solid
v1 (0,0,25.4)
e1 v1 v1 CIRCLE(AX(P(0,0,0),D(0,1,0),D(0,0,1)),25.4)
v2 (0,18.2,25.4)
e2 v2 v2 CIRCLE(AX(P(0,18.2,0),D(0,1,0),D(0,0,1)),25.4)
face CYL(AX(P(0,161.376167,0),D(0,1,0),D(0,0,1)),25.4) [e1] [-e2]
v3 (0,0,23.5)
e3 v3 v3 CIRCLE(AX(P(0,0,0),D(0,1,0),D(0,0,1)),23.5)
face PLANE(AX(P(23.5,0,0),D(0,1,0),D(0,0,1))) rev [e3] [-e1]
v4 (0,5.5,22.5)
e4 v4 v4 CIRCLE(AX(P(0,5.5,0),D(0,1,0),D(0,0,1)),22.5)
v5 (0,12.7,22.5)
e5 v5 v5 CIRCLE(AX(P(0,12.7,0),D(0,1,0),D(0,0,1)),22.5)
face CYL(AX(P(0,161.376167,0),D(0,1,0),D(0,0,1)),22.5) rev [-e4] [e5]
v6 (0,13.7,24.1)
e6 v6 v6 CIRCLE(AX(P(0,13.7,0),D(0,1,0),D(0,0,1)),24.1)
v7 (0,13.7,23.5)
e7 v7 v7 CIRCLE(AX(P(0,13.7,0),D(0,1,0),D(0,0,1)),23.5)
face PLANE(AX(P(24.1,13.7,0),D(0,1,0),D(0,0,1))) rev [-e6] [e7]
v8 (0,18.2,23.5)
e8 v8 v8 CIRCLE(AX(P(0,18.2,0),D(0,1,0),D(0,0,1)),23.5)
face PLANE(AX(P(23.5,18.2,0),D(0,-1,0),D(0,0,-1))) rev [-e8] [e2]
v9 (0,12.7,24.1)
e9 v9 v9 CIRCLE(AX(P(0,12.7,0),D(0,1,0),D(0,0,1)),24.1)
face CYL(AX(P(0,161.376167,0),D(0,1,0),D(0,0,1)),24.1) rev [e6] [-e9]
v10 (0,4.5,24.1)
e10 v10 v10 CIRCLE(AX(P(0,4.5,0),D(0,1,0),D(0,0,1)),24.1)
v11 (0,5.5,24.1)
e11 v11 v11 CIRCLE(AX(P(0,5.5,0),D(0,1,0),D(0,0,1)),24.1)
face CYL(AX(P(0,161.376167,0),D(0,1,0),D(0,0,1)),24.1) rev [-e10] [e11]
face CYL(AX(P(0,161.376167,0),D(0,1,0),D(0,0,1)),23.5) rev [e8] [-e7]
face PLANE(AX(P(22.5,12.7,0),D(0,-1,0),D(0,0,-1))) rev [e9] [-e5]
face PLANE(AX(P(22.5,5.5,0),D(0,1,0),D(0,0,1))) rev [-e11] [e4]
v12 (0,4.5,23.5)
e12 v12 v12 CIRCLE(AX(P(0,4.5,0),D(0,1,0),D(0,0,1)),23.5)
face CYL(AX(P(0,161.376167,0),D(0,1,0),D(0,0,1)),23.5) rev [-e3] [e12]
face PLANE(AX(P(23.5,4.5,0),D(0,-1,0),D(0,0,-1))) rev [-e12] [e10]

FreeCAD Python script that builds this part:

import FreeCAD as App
import Part
import Sketcher

V = App.Vector


def add_polygon(sketch, points):
    """Adds a closed chain of lines whose ends are joined by coincident constraints."""
    first, n = sketch.GeometryCount, len(points)
    for a, b in zip(points, points[1:] + points[:1]):
        sketch.addGeometry(Part.LineSegment(App.Vector(*a, 0), App.Vector(*b, 0)), False)
    for i in range(n):
        sketch.addConstraint(Sketcher.Constraint("Coincident", first + i, 2, first + (i + 1) % n, 1))

doc = App.newDocument("Part")
params = doc.addObject("Spreadsheet::Sheet", "Params")
for row, (alias, value) in enumerate([
    ("sketch1_height", "1 mm"),
    ("sketch1_width", "1.9 mm"),
    ("sketch1_width2", "0.6 mm"),
    ("sketch1_width3", "1.6 mm"),
    ("sketch1_height2", "18.2 mm"),
    ("revolution_angle", "360 deg"),
], start=1):
    params.set(f"A{row}", alias)
    params.set(f"B{row}", "=" + value)
    params.setAlias(f"B{row}", alias)

body = doc.addObject("PartDesign::Body", "Body")

# Sketch on XY plane
sketch1 = doc.addObject("Sketcher::SketchObject", "Sketch")
body.addObject(sketch1)
sketch1.AttachmentSupport = (doc.XY_Plane, [""])
sketch1.MapMode = "FlatFace"
add_polygon(sketch1, [(25.4, 0), (25.4, 18.2), (23.5, 18.2), (23.5, 13.7), (24.1, 13.7), (24.1, 12.7), (22.5, 12.7), (22.5, 5.5), (24.1, 5.5), (24.1, 4.5), (23.5, 4.5), (23.5, 0)])  # lines 0-11
sketch1.addConstraint([
    Sketcher.Constraint("Vertical", 0),
    Sketcher.Constraint("Horizontal", 1),
    Sketcher.Constraint("Vertical", 2),
    Sketcher.Constraint("Horizontal", 3),
    Sketcher.Constraint("Vertical", 4),
    Sketcher.Constraint("Horizontal", 5),
    Sketcher.Constraint("Vertical", 6),
    Sketcher.Constraint("Horizontal", 7),
    Sketcher.Constraint("Vertical", 8),
    Sketcher.Constraint("Horizontal", 9),
    Sketcher.Constraint("Vertical", 10),
    Sketcher.Constraint("Horizontal", 11),
    Sketcher.Constraint("PointOnObject", 10, 2, -1),
    Sketcher.Constraint("Vertical", 4, 2, 7, 2),
    Sketcher.Constraint("Vertical", 2, 2, 9, 2),
    Sketcher.Constraint("Equal", 4, 8),
    Sketcher.Constraint("Equal", 2, 10),
    Sketcher.Constraint("DistanceY", 4, 2, 4, 1, 1.0),
    Sketcher.Constraint("DistanceX", 1, 2, 1, 1, 1.9),
    Sketcher.Constraint("DistanceX", 3, 1, 3, 2, 0.6),
    Sketcher.Constraint("DistanceX", 5, 2, 5, 1, 1.6),
    Sketcher.Constraint("DistanceY", 0, 1, 0, 2, 18.2),
    Sketcher.Constraint("DistanceY", 2, 2, 2, 1, 4.5),
    Sketcher.Constraint("DistanceX", -1, 1, 0, 2, 25.4),
])
sketch1.setExpression("Constraints[29]", "Params.sketch1_height")
sketch1.setExpression("Constraints[30]", "Params.sketch1_width")
sketch1.setExpression("Constraints[31]", "Params.sketch1_width2")
sketch1.setExpression("Constraints[32]", "Params.sketch1_width3")
sketch1.setExpression("Constraints[33]", "Params.sketch1_height2")
revolution = doc.addObject("PartDesign::Revolution", "Revolution")
body.addObject(revolution)
revolution.Profile = sketch1
revolution.ReferenceAxis = (sketch1, ["V_Axis"])
revolution.setExpression("Angle", "Params.revolution_angle")

doc.recompute()
